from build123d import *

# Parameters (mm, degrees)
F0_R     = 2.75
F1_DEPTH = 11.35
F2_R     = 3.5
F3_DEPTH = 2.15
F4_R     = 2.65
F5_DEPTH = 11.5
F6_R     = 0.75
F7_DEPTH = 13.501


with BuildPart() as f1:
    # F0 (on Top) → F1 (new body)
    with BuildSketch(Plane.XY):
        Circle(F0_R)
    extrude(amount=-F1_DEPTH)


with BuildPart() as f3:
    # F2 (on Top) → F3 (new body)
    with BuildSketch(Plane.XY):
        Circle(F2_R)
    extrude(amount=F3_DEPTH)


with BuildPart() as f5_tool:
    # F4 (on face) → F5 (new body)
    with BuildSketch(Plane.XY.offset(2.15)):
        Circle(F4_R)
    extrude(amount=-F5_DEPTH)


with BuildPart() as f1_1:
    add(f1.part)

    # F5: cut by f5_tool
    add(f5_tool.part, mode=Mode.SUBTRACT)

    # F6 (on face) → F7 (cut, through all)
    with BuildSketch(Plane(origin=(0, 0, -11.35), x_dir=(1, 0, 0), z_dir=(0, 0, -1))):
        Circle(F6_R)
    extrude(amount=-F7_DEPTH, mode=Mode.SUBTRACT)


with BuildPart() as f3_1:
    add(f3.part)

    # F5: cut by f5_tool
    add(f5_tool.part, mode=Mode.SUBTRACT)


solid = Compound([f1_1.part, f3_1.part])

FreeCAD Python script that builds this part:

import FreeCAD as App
import Part
import Sketcher

doc = App.newDocument("Part")
params = doc.addObject("Spreadsheet::Sheet", "Params")
for row, (alias, value) in enumerate([
    ("sketch1_diameter", "5.5 mm"),
    ("pad1_length", "11.35 mm"),
    ("sketch2_diameter", "7 mm"),
    ("pad2_length", "2.15 mm"),
    ("sketch3_diameter", "5.3 mm"),
    ("pad3_length", "11.5 mm"),
    ("sketch4_diameter", "1.5 mm"),
], start=1):
    params.set(f"A{row}", alias)
    params.set(f"B{row}", "=" + value)
    params.setAlias(f"B{row}", alias)

body = doc.addObject("PartDesign::Body", "Body")

# Sketch on XY plane
sketch1 = body.newObject("Sketcher::SketchObject", "Sketch")
sketch1.AttachmentSupport = (doc.getObject("XY_Plane"), [""])
sketch1.MapMode = "FlatFace"
sketch1.addGeometry(Part.Circle(App.Vector(0, 0, 0), App.Vector(0, 0, 1), 2.8), False)
sketch1.addConstraint([
    Sketcher.Constraint("Coincident", 0, 3, -1, 1),
    Sketcher.Constraint("Diameter", 0, 5.5),
])
sketch1.setExpression("Constraints[1]", "Params.sketch1_diameter")
pad1 = body.newObject("PartDesign::Pad", "Pad")
pad1.Profile = sketch1
pad1.setExpression("Length", "Params.pad1_length")
pad1.Reversed = True
body2 = doc.addObject("PartDesign::Body", "Body001")

# Sketch on XY plane
sketch2 = body2.newObject("Sketcher::SketchObject", "Sketch001")
sketch2.AttachmentSupport = (doc.getObject("XY_Plane001"), [""])
sketch2.MapMode = "FlatFace"
sketch2.addGeometry(Part.Circle(App.Vector(0, 0, 0), App.Vector(0, 0, 1), 3.5), False)
sketch2.addConstraint([
    Sketcher.Constraint("Coincident", 0, 3, -1, 1),
    Sketcher.Constraint("Diameter", 0, 7.0),
])
sketch2.setExpression("Constraints[1]", "Params.sketch2_diameter")
pad2 = body2.newObject("PartDesign::Pad", "Pad001")
pad2.Profile = sketch2
pad2.setExpression("Length", "Params.pad2_length")
body3 = doc.addObject("PartDesign::Body", "Body002")

# Sketch on XY plane
sketch3 = body3.newObject("Sketcher::SketchObject", "Sketch002")
sketch3.AttachmentSupport = (doc.getObject("XY_Plane002"), [""])
sketch3.MapMode = "FlatFace"
sketch3.AttachmentOffset = App.Placement(App.Vector(0, 0, 2.15), App.Rotation())
sketch3.addGeometry(Part.Circle(App.Vector(0, 0, 0), App.Vector(0, 0, 1), 2.6), False)
sketch3.addConstraint([
    Sketcher.Constraint("Coincident", 0, 3, -1, 1),
    Sketcher.Constraint("Diameter", 0, 5.3),
])
sketch3.setExpression("Constraints[1]", "Params.sketch3_diameter")
pad3 = body3.newObject("PartDesign::Pad", "Pad002")
pad3.Profile = sketch3
pad3.setExpression("Length", "Params.pad3_length")
pad3.Reversed = True
doc.recompute()

body4 = doc.addObject("PartDesign::Body", "Body003")
body4.BaseFeature = body3
boolean = body.newObject("PartDesign::Boolean", "Boolean")
boolean.Type = "Cut"
boolean.addObjects([body4])
doc.recompute()

# Sketch on XY plane
sketch4 = body.newObject("Sketcher::SketchObject", "Sketch003")
sketch4.AttachmentSupport = (doc.getObject("XY_Plane"), [""])
sketch4.MapMode = "FlatFace"
sketch4.AttachmentOffset = App.Placement(App.Vector(0, 0, -11.35), App.Rotation())
sketch4.addGeometry(Part.Circle(App.Vector(0, 0, 0), App.Vector(0, 0, 1), 0.8), False)
sketch4.addConstraint([
    Sketcher.Constraint("Coincident", 0, 3, -1, 1),
    Sketcher.Constraint("Diameter", 0, 1.5),
])
sketch4.setExpression("Constraints[1]", "Params.sketch4_diameter")
pocket1 = body.newObject("PartDesign::Pocket", "Pocket")
pocket1.Profile = sketch4
pocket1.Type = "ThroughAll"
pocket1.Reversed = True
doc.recompute()

boolean2 = body2.newObject("PartDesign::Boolean", "Boolean001")
boolean2.Type = "Cut"
boolean2.addObjects([body3])

doc.recompute()
